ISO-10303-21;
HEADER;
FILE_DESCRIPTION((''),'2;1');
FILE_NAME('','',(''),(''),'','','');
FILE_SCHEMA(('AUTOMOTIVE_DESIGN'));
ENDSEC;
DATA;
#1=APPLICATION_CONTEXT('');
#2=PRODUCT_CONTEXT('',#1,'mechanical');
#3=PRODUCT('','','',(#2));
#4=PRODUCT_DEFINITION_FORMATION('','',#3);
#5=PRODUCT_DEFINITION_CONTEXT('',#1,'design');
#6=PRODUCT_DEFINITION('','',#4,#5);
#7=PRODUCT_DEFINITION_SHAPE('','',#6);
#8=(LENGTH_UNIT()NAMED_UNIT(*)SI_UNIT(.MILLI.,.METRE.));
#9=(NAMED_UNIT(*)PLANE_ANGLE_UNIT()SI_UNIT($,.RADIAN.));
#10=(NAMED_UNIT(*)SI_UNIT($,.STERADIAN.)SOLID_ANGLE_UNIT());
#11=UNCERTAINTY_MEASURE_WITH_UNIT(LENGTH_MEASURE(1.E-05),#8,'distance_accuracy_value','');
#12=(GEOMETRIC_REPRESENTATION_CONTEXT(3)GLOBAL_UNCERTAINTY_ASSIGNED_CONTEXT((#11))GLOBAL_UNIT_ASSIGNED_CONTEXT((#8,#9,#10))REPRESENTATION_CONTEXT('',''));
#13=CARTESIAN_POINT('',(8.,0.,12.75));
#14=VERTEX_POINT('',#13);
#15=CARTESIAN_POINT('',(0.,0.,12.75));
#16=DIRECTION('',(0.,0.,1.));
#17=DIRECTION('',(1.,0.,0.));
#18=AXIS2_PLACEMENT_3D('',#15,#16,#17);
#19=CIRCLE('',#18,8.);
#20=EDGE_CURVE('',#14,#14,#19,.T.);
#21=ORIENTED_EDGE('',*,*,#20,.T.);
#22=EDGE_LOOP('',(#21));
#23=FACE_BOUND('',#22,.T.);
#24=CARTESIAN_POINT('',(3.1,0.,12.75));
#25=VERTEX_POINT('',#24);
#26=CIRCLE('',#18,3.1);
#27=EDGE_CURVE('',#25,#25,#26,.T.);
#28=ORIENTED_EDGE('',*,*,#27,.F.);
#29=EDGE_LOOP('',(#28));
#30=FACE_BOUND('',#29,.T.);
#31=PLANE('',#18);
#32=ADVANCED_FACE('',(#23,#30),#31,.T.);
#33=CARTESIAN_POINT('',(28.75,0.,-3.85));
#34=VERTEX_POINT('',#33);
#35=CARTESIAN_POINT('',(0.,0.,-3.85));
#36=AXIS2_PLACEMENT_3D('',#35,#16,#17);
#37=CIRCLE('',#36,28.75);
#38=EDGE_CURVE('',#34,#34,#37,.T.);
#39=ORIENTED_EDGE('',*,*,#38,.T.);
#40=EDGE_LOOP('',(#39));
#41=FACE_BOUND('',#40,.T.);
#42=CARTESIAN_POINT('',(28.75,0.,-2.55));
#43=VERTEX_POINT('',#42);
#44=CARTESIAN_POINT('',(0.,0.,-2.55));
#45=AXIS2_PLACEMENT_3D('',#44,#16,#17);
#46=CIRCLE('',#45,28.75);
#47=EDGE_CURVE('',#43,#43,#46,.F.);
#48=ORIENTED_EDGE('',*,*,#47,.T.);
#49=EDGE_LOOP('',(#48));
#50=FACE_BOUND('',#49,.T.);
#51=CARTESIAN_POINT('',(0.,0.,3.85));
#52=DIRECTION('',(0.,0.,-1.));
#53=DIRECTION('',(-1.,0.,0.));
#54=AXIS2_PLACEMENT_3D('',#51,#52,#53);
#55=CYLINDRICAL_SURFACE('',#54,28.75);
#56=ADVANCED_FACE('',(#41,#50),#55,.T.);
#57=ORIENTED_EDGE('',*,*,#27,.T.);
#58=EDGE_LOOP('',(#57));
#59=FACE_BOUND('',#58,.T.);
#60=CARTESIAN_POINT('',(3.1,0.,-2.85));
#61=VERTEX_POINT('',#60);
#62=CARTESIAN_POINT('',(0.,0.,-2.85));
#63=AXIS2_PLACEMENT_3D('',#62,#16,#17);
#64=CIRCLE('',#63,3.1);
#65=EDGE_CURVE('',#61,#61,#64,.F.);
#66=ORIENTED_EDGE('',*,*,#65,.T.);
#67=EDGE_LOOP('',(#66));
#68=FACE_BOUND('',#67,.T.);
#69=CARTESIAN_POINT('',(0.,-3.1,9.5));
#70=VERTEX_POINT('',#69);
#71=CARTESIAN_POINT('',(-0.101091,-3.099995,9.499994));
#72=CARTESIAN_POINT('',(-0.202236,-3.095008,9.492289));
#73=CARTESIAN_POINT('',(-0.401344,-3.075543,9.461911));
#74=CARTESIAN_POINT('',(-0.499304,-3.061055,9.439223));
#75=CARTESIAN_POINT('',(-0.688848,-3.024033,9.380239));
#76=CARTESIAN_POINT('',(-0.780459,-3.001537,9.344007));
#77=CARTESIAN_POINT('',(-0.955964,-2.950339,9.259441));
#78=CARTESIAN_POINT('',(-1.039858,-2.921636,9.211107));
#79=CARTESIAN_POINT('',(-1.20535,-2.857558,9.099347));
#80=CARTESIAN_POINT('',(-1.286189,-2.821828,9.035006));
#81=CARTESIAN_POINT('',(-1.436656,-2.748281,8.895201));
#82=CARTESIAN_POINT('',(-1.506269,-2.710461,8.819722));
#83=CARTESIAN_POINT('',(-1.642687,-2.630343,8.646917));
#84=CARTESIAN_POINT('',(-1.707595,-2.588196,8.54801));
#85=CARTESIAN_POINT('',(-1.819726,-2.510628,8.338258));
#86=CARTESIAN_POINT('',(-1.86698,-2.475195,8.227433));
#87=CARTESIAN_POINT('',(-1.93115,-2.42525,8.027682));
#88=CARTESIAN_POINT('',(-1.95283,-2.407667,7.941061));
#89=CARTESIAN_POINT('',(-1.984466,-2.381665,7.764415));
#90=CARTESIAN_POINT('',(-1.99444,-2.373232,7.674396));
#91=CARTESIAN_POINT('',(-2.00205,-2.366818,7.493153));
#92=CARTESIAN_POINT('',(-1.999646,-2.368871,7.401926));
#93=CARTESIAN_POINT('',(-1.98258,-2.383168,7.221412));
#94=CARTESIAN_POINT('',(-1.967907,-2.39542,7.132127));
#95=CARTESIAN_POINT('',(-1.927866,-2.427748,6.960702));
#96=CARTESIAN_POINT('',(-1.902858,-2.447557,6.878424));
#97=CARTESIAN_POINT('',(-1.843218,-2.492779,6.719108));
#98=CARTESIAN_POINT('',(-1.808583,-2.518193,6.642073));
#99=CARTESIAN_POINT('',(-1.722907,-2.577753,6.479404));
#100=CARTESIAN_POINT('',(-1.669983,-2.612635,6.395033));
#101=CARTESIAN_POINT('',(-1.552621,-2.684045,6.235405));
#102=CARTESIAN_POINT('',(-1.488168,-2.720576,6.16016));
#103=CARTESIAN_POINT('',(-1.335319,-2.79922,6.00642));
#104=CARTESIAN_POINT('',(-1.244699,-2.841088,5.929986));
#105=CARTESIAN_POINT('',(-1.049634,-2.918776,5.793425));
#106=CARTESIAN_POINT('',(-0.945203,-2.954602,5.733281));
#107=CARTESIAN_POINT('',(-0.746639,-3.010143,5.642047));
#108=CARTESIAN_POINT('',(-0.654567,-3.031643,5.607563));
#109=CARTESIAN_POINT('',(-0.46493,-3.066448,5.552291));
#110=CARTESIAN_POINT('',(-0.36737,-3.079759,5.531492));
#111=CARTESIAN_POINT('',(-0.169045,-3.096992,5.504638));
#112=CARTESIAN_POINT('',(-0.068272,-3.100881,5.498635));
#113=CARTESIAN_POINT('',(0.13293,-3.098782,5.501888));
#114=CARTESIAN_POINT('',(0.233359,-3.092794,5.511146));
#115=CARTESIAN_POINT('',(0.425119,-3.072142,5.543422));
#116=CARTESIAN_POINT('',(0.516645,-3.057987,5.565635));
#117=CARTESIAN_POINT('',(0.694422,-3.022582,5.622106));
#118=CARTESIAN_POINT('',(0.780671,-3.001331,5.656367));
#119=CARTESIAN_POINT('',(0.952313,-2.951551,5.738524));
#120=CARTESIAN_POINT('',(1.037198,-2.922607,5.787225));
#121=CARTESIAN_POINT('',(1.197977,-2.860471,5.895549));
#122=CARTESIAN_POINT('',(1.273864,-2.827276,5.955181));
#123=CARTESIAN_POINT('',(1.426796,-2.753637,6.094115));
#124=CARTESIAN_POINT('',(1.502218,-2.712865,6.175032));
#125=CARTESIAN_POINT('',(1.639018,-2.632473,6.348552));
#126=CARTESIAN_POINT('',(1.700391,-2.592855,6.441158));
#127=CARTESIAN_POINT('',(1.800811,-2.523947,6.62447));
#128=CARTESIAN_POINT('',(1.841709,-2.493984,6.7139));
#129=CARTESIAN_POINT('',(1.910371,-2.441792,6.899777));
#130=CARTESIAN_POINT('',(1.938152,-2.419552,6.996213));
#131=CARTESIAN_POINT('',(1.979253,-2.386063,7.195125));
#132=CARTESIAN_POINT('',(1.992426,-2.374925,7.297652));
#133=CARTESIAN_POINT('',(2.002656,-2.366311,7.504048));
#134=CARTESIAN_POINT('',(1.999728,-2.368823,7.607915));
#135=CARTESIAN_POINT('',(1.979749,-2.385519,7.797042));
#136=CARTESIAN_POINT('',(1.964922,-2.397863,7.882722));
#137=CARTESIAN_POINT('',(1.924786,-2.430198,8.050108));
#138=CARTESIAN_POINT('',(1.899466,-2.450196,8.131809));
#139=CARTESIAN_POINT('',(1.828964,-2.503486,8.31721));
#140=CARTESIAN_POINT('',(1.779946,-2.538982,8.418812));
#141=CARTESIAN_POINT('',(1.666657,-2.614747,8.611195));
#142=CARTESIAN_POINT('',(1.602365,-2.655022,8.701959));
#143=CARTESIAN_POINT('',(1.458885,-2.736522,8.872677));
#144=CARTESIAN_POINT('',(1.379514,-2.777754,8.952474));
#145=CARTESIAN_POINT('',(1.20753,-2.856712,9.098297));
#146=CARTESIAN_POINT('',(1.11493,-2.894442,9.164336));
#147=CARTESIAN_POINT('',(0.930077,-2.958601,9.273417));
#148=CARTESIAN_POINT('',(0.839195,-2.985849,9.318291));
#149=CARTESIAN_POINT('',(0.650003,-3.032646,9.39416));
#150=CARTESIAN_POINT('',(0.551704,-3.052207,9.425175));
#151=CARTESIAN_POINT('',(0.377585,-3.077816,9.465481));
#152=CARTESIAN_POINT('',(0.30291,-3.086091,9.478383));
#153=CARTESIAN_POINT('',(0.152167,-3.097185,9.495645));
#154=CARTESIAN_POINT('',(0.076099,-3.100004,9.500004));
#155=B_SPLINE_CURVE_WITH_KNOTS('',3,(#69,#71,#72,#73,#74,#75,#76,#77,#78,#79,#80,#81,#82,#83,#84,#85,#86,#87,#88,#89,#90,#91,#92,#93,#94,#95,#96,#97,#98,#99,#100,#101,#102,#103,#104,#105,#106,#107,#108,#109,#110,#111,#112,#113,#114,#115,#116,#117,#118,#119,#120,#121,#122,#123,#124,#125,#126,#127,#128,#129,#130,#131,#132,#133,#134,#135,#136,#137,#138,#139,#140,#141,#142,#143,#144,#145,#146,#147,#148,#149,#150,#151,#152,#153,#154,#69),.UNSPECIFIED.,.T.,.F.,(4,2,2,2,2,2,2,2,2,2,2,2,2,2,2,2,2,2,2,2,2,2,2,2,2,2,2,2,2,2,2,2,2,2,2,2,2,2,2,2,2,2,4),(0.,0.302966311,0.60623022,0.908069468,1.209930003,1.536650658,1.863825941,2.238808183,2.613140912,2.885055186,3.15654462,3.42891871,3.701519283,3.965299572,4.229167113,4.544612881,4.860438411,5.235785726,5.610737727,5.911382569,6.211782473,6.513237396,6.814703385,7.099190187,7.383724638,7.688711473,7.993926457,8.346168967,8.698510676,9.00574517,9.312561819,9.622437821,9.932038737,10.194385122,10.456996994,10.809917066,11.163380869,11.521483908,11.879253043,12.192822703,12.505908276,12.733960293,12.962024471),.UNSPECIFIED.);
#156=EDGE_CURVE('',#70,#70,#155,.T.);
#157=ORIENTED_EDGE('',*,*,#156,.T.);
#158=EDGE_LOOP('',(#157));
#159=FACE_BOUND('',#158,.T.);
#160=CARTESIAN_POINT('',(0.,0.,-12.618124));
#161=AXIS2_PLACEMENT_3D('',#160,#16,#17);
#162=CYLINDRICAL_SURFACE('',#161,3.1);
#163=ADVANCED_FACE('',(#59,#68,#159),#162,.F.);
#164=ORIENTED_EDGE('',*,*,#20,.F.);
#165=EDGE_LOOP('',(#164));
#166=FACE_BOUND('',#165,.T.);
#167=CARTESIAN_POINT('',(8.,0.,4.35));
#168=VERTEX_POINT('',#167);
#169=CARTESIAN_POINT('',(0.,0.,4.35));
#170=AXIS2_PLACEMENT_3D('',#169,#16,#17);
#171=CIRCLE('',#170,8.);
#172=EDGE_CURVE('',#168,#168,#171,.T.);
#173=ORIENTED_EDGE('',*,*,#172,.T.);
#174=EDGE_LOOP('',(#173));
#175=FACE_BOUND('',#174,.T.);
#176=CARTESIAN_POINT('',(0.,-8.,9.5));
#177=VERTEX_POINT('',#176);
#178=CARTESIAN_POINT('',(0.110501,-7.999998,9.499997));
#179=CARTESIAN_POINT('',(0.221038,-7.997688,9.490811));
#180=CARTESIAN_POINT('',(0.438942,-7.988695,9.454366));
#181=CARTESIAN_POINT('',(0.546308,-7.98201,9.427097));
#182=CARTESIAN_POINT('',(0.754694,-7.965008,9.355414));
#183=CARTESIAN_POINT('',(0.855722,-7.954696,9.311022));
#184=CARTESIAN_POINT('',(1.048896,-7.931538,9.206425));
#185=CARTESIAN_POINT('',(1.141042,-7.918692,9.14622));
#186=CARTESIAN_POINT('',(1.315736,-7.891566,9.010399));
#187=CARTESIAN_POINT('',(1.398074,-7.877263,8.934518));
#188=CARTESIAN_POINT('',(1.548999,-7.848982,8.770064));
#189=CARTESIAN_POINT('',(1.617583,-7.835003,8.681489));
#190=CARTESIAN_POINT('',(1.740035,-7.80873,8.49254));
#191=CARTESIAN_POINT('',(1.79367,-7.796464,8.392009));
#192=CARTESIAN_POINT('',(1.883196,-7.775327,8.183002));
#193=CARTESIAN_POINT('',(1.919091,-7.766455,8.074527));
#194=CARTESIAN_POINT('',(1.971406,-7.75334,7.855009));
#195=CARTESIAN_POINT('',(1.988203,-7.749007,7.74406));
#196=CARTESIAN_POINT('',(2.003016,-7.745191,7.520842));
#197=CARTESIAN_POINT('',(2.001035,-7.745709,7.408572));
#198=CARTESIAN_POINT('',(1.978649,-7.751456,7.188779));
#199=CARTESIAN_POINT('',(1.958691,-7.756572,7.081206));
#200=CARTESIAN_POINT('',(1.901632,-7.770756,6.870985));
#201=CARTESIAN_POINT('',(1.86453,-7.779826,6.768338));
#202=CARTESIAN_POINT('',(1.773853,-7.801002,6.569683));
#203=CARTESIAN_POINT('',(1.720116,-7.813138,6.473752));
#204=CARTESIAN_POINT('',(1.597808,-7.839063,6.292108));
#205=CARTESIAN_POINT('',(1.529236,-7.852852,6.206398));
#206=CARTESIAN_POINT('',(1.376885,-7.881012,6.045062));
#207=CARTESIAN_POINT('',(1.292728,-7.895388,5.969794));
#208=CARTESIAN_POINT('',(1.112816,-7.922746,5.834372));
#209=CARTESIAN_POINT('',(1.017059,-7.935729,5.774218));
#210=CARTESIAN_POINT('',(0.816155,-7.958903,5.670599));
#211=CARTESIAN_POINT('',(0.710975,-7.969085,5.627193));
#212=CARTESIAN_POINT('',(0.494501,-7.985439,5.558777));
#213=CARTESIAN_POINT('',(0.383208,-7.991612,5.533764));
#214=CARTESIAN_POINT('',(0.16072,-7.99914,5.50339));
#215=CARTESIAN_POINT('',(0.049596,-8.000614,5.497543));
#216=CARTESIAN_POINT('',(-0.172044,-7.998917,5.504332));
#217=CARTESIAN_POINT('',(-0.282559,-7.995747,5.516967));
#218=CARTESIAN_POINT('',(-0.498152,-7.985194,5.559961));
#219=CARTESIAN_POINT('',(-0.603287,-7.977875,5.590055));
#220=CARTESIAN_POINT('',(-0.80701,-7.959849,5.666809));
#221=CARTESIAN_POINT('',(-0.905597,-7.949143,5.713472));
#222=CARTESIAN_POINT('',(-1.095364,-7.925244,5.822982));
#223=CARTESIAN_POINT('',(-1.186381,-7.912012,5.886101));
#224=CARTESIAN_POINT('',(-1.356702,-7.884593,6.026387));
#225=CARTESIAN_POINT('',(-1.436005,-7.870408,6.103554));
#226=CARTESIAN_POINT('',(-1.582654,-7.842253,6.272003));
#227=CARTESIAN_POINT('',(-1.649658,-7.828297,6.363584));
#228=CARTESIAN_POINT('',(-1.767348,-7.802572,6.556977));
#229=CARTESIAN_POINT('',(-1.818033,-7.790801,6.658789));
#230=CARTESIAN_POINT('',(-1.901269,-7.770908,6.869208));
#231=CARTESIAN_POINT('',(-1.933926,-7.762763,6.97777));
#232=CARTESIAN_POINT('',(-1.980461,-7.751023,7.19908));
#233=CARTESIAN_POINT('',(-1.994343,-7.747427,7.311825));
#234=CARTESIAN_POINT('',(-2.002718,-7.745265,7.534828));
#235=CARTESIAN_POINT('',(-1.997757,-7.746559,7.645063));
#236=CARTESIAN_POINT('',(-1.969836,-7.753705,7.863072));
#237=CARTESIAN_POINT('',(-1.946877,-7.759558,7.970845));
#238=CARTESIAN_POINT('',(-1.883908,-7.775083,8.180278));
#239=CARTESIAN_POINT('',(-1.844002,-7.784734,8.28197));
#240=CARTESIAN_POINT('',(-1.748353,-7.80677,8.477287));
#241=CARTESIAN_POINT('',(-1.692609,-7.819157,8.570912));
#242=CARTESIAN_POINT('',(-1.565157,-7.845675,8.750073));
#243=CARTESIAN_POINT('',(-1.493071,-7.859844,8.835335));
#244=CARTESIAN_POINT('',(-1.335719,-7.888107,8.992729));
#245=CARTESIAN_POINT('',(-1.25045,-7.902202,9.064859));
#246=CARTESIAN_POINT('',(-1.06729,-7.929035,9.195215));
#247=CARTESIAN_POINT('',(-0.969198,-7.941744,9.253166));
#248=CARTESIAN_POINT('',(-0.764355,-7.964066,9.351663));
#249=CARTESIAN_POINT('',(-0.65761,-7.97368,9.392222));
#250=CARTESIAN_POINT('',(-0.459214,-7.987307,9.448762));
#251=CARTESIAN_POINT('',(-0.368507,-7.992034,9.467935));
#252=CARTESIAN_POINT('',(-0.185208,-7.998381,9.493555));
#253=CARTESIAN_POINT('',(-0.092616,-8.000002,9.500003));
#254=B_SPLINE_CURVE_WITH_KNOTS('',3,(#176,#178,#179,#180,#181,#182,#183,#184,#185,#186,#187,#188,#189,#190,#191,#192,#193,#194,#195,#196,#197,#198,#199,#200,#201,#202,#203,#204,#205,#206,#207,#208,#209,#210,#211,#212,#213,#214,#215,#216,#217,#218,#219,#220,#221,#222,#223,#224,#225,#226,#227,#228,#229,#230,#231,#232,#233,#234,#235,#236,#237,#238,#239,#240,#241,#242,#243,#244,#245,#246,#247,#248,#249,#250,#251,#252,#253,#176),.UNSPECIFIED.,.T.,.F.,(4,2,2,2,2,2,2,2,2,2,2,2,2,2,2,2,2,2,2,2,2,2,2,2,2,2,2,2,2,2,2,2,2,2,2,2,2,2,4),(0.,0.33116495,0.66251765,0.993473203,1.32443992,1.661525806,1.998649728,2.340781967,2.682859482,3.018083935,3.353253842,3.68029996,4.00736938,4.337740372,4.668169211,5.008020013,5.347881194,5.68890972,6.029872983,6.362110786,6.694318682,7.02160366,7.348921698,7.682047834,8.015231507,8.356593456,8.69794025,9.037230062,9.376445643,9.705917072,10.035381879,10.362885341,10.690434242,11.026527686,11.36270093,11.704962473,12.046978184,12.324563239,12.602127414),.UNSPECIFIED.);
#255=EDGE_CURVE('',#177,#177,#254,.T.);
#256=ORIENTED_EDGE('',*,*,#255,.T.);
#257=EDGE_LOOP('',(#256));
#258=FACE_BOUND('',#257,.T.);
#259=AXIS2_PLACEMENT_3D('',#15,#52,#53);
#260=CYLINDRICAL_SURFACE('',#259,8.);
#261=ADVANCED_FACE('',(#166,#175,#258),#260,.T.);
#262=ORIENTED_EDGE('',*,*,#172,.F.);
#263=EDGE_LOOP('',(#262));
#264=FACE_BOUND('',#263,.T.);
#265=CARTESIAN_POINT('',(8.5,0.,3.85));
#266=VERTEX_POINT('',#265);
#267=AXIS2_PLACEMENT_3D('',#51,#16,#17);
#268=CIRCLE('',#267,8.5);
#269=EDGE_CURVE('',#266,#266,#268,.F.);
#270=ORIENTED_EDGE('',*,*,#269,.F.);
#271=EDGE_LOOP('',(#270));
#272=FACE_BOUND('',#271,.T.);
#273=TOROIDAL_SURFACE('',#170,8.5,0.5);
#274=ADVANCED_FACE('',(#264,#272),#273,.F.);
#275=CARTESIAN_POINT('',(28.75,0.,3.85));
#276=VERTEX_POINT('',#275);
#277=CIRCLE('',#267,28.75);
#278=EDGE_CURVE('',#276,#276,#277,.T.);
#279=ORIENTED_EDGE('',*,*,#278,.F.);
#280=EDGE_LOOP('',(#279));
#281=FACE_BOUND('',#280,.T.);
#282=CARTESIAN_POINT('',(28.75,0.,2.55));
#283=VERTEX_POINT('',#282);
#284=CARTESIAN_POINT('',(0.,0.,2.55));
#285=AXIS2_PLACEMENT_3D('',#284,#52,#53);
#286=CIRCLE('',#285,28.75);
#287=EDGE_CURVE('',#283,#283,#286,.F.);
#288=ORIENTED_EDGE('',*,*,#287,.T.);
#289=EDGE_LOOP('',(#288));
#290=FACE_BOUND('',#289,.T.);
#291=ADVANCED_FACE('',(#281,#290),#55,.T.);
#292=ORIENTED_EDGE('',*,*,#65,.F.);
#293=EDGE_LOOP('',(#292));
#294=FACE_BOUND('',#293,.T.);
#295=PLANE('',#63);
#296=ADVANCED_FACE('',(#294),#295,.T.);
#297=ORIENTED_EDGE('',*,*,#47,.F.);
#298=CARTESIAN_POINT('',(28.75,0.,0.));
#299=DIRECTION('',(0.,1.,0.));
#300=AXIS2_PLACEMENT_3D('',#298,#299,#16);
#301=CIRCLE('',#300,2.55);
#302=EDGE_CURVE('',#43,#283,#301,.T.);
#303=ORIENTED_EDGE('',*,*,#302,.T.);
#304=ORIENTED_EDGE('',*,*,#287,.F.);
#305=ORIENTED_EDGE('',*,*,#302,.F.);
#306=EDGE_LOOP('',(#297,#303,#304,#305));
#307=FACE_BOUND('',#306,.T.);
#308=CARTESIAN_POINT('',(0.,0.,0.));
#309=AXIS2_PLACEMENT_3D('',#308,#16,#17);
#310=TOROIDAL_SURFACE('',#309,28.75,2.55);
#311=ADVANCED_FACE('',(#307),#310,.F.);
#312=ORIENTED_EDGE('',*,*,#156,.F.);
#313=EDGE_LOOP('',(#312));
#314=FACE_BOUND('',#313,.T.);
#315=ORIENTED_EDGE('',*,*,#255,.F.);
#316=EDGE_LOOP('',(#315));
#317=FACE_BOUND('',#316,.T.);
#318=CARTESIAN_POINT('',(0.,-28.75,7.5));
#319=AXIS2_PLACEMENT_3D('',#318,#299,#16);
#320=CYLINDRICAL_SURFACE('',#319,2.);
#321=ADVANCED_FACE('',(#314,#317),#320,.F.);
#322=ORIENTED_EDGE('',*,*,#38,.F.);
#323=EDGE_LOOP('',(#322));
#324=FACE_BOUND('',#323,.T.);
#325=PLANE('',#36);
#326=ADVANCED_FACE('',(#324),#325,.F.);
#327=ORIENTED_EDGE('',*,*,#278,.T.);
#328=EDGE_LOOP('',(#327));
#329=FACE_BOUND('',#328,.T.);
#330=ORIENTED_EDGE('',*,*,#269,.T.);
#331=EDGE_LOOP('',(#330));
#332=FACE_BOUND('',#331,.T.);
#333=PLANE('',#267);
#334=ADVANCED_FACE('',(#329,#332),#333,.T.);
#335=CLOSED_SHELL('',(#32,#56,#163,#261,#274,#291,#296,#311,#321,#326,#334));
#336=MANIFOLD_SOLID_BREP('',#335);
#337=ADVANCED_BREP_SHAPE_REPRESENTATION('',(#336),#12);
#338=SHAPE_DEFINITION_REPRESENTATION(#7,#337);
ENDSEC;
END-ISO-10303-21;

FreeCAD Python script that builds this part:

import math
import FreeCAD as App
import Part
import Sketcher

V = App.Vector


def edges_at(feature, points):
    """Names of the edges that pass closest to the given points."""
    edges = feature.Shape.Edges
    near = lambda p: min(range(len(edges)), key=lambda i: edges[i].distToShape(Part.Vertex(*p))[0])
    return sorted({f"Edge{near(p) + 1}" for p in points})

doc = App.newDocument("Part")
body = doc.addObject("PartDesign::Body", "Body")

# Sketch on XY plane
sketch1 = body.newObject("Sketcher::SketchObject", "Sketch")
sketch1.AttachmentSupport = (doc.getObject("XY_Plane"), [""])
sketch1.MapMode = "FlatFace"
sketch1.addGeometry(Part.Circle(V(0, 0, 0), V(0, 0, 1), 29), False)
sketch1.addConstraint([
    Sketcher.Constraint("Coincident", 0, 3, -1, 1),
    Sketcher.Constraint("Diameter", 0, 57.5),
])
pad1 = body.newObject("PartDesign::Pad", "Pad")
pad1.Profile = sketch1
pad1.Length = 7.7
pad1.Midplane = True

# Sketch on XZ plane
sketch2 = body.newObject("Sketcher::SketchObject", "Sketch001")
sketch2.AttachmentSupport = (doc.getObject("XZ_Plane"), [""])
sketch2.MapMode = "FlatFace"
sketch2.addGeometry(Part.Circle(V(28.8, 0, 0), V(0, 0, 1), 2.5), False)
sketch2.addConstraint([
    Sketcher.Constraint("PointOnObject", 0, 3, -1),
    Sketcher.Constraint("Diameter", 0, 5.1),
    Sketcher.Constraint("DistanceX", -1, 1, 0, 3, 28.75),
])

# Sketch on XY plane
sketch3 = body.newObject("Sketcher::SketchObject", "Sketch002")
sketch3.AttachmentSupport = (doc.getObject("XY_Plane"), [""])
sketch3.MapMode = "FlatFace"
sketch3.AttachmentOffset = App.Placement(V(0, 0, -3.85), App.Rotation())
sketch3.addGeometry([
    Part.ArcOfCircle(Part.Circle(V(0, 0, 0), V(0, 0, 1), 29), math.radians(0), math.radians(90)),
    Part.ArcOfCircle(Part.Circle(V(0, 0, 0), V(0, 0, 1), 29), math.radians(90), math.radians(180)),
    Part.ArcOfCircle(Part.Circle(V(0, 0, 0), V(0, 0, 1), 29), math.radians(180), math.radians(270)),
    Part.ArcOfCircle(Part.Circle(V(0, 0, 0), V(0, 0, 1), 29), math.radians(-90), math.radians(0)),
], False)
sketch3.addConstraint([
    Sketcher.Constraint("Tangent", 0, 2, 1, 1),
    Sketcher.Constraint("Tangent", 1, 2, 2, 1),
    Sketcher.Constraint("Tangent", 2, 2, 3, 1),
    Sketcher.Constraint("Tangent", 3, 2, 0, 1),
    Sketcher.Constraint("Coincident", 0, 3, -1, 1),
    Sketcher.Constraint("Equal", 0, 1),
    Sketcher.Constraint("PointOnObject", 0, 2, -2),
    Sketcher.Constraint("PointOnObject", 1, 2, -1),
    Sketcher.Constraint("PointOnObject", 2, 2, -2),
    Sketcher.Constraint("PointOnObject", 3, 2, -1),
    Sketcher.Constraint("Radius", 0, 28.75),
])
doc.recompute()

subtractivepipe = body.newObject("PartDesign::SubtractivePipe", "SubtractivePipe")
subtractivepipe.Profile = sketch2
subtractivepipe.Spine = (sketch3, ["Edge1", "Edge2", "Edge3", "Edge4"])

# Sketch on XY plane
sketch4 = body.newObject("Sketcher::SketchObject", "Sketch003")
sketch4.AttachmentSupport = (doc.getObject("XY_Plane"), [""])
sketch4.MapMode = "FlatFace"
sketch4.AttachmentOffset = App.Placement(V(0, 0, 3.85), App.Rotation())
sketch4.addGeometry(Part.Circle(V(0, 0, 0), V(0, 0, 1), 8), False)
sketch4.addConstraint([
    Sketcher.Constraint("Coincident", 0, 3, -1, 1),
    Sketcher.Constraint("Diameter", 0, 16.0),
])
pad2 = body.newObject("PartDesign::Pad", "Pad001")
pad2.Profile = sketch4
pad2.Length = 8.9

# Sketch on XY plane
sketch5 = body.newObject("Sketcher::SketchObject", "Sketch004")
sketch5.AttachmentSupport = (doc.getObject("XY_Plane"), [""])
sketch5.MapMode = "FlatFace"
sketch5.AttachmentOffset = App.Placement(V(0, 0, 12.75), App.Rotation())
sketch5.addGeometry(Part.Circle(V(0, 0, 0), V(0, 0, 1), 3.1), False)
sketch5.addConstraint([
    Sketcher.Constraint("Coincident", 0, 3, -1, 1),
    Sketcher.Constraint("Diameter", 0, 6.2),
])
pocket1 = body.newObject("PartDesign::Pocket", "Pocket")
pocket1.Profile = sketch5
pocket1.Length = 15.6

# Sketch on XZ plane
sketch6 = body.newObject("Sketcher::SketchObject", "Sketch005")
sketch6.AttachmentSupport = (doc.getObject("XZ_Plane"), [""])
sketch6.MapMode = "FlatFace"
sketch6.addGeometry(Part.Circle(V(0, 7.5, 0), V(0, 0, 1), 2), False)
sketch6.addConstraint([
    Sketcher.Constraint("PointOnObject", 0, 3, -2),
    Sketcher.Constraint("Diameter", 0, 4.0),
    Sketcher.Constraint("DistanceY", -1, 1, 0, 3, 7.5),
])
pocket2 = body.newObject("PartDesign::Pocket", "Pocket001")
pocket2.Profile = sketch6
pocket2.Type = "ThroughAll"
pocket2.Reversed = True
doc.recompute()

fillet = body.newObject("PartDesign::Fillet", "Fillet")
fillet.Base = (pocket2, edges_at(pocket2, [(-8, 0, 3.85)]))
fillet.Radius = 0.5

doc.recompute()
